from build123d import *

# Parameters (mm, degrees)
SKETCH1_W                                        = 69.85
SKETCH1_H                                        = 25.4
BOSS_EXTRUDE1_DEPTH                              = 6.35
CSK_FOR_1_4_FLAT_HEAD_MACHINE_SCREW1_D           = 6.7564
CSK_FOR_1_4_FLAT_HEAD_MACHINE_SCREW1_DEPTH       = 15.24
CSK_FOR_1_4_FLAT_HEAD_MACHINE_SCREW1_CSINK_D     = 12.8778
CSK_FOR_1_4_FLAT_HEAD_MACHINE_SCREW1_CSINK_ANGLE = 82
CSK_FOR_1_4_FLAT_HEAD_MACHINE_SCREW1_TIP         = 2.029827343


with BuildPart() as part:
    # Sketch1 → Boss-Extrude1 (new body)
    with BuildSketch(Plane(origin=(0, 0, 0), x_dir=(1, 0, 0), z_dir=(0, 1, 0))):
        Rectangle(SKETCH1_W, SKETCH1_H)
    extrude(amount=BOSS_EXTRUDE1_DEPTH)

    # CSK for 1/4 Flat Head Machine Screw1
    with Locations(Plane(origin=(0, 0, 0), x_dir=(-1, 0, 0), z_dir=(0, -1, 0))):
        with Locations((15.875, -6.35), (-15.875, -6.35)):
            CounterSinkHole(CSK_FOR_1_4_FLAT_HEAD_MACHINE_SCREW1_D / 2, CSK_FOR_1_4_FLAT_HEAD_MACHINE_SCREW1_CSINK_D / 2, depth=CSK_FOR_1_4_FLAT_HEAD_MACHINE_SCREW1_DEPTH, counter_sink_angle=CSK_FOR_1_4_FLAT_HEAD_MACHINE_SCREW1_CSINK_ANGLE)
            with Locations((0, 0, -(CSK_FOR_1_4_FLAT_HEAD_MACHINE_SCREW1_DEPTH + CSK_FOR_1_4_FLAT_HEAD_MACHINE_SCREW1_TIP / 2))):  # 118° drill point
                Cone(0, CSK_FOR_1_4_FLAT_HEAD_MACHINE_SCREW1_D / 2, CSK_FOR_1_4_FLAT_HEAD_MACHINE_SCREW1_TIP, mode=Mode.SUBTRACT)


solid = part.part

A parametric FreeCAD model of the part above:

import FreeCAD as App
import Part
import Sketcher

V = App.Vector
Q = App.Units.Quantity

doc = App.newDocument("Part")
body = doc.addObject("PartDesign::Body", "Body")

# Sketch on XZ plane
sketch1 = body.newObject("Sketcher::SketchObject", "Sketch")
sketch1.AttachmentSupport = (doc.getObject("XZ_Plane"), [""])
sketch1.MapMode = "FlatFace"
sketch1.addGeometry(Part.LineSegment(V(-34.925, -12.7, 0), V(-34.925, 12.7, 0)), False)
sketch1.addGeometry(Part.LineSegment(V(-34.925, 12.7, 0), V(34.925, 12.7, 0)), False)
sketch1.addGeometry(Part.LineSegment(V(34.925, 12.7, 0), V(34.925, -12.7, 0)), False)
sketch1.addGeometry(Part.LineSegment(V(34.925, -12.7, 0), V(-34.925, -12.7, 0)), False)
sketch1.addConstraint(Sketcher.Constraint("Coincident", 0, 2, 1, 1))
sketch1.addConstraint(Sketcher.Constraint("Coincident", 1, 2, 2, 1))
sketch1.addConstraint(Sketcher.Constraint("Coincident", 2, 2, 3, 1))
sketch1.addConstraint(Sketcher.Constraint("Coincident", 3, 2, 0, 1))
sketch1.addConstraint(Sketcher.Constraint("Vertical", 0))
sketch1.addConstraint(Sketcher.Constraint("Horizontal", 1))
sketch1.addConstraint(Sketcher.Constraint("Vertical", 2))
sketch1.addConstraint(Sketcher.Constraint("Horizontal", 3))
sketch1.addConstraint(Sketcher.Constraint("Symmetric", 0, 2, 2, 2, -1, 1))
sketch1.addConstraint(Sketcher.Constraint("DistanceY", 0, 1, 0, 2, Q("1 in")))
sketch1.addConstraint(Sketcher.Constraint("DistanceX", 1, 1, 1, 2, Q("2.75 in")))
pad1 = body.newObject("PartDesign::Pad", "Pad")
pad1.Profile = sketch1
pad1.Length = Q("0.25 in")
pad1.Reversed = True

# Sketch on XZ plane
sketch2 = body.newObject("Sketcher::SketchObject", "Sketch001")
sketch2.AttachmentSupport = (doc.getObject("XZ_Plane"), [""])
sketch2.MapMode = "FlatFace"
sketch2.addGeometry(Part.Circle(V(-15.875, 6.35, 0), V(0, 0, 1), 3.3782), False)
sketch2.addGeometry(Part.Circle(V(15.875, 6.35, 0), V(0, 0, 1), 3.3782), False)
sketch2.addConstraint(Sketcher.Constraint("Equal", 0, 1))
sketch2.addConstraint(Sketcher.Constraint("Symmetric", 0, 3, 1, 3, -2))
sketch2.addConstraint(Sketcher.Constraint("Diameter", 0, Q("0.266 in")))
sketch2.addConstraint(Sketcher.Constraint("DistanceY", -1, 1, 0, 3, Q("0.25 in")))
sketch2.addConstraint(Sketcher.Constraint("DistanceX", 0, 3, 1, 3, Q("1.25 in")))
doc.recompute()
hole = body.newObject("PartDesign::Hole", "Hole")
hole.Profile = sketch2
hole.ThreadType = "None"
hole.Diameter = Q("0.266 in")
hole.DepthType = "Dimension"
hole.Depth = Q("0.6 in")
hole.DrillPoint = "Angled"
hole.DrillPointAngle = 118
hole.HoleCutType = "Countersink"
hole.HoleCutDiameter = Q("0.507 in")
hole.HoleCutCountersinkAngle = 82

doc.recompute()
